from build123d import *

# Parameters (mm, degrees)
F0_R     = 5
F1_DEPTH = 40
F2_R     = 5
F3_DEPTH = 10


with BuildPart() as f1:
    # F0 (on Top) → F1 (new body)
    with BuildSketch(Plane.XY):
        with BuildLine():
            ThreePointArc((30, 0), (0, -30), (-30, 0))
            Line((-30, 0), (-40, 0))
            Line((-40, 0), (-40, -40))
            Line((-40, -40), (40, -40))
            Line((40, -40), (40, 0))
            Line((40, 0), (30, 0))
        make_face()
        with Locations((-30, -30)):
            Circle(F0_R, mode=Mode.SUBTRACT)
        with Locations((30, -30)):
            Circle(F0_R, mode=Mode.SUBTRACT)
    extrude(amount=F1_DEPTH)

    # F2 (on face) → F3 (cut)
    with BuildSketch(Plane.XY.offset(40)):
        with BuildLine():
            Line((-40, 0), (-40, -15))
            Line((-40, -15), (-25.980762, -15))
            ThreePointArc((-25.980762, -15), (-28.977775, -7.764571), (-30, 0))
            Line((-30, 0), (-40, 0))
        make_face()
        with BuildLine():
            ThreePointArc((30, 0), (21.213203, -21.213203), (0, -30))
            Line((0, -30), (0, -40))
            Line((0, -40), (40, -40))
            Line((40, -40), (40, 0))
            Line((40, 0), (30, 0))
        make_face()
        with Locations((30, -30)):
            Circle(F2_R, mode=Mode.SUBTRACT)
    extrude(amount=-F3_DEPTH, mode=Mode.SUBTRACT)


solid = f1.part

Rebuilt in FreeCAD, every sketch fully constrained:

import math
import FreeCAD as App
import Part
import Sketcher

V = App.Vector
Q = App.Units.Quantity

doc = App.newDocument("Part")
body = doc.addObject("PartDesign::Body", "Body")

# Sketch on XY plane
sketch1 = body.newObject("Sketcher::SketchObject", "Sketch")
sketch1.AttachmentSupport = (doc.getObject("XY_Plane"), [""])
sketch1.MapMode = "FlatFace"
sketch1.addGeometry([
    Part.ArcOfCircle(Part.Circle(V(0, 0, 0), V(0, 0, 1), 30), math.radians(180), math.radians(360)),  # 0
    Part.LineSegment(V(-30, 0, 0), V(-40, 0, 0)),  # 1
    Part.LineSegment(V(-40, 0, 0), V(-40, -40, 0)),  # 2
    Part.LineSegment(V(-40, -40, 0), V(40, -40, 0)),  # 3
    Part.LineSegment(V(40, -40, 0), V(40, 0, 0)),  # 4
    Part.LineSegment(V(40, 0, 0), V(30, 0, 0)),  # 5
    Part.Circle(V(-30, -30, 0), V(0, 0, 1), 5),  # 6
    Part.Circle(V(30, -30, 0), V(0, 0, 1), 5),  # 7
], False)
sketch1.addConstraint([
    Sketcher.Constraint("Coincident", 0, 1, 1, 1),
    Sketcher.Constraint("Coincident", 1, 2, 2, 1),
    Sketcher.Constraint("Coincident", 2, 2, 3, 1),
    Sketcher.Constraint("Coincident", 3, 2, 4, 1),
    Sketcher.Constraint("Coincident", 4, 2, 5, 1),
    Sketcher.Constraint("Coincident", 5, 2, 0, 2),
    Sketcher.Constraint("Horizontal", 1),
    Sketcher.Constraint("Vertical", 2),
    Sketcher.Constraint("Horizontal", 3),
    Sketcher.Constraint("Vertical", 4),
    Sketcher.Constraint("Horizontal", 5),
    Sketcher.Constraint("Coincident", 0, 3, -1, 1),
    Sketcher.Constraint("Equal", 6, 7),
    Sketcher.Constraint("Symmetric", 1, 2, 4, 2, -1, 1),
    Sketcher.Constraint("Symmetric", 6, 3, 7, 3, -2),
    Sketcher.Constraint("PointOnObject", 0, 1, -1),
    Sketcher.Constraint("Vertical", 6, 3, 0, 1),
    Sketcher.Constraint("Diameter", 6, Q("10 mm")),
    Sketcher.Constraint("Radius", 0, Q("30 mm")),
    Sketcher.Constraint("DistanceX", 1, 2, 1, 1, Q("10 mm")),
    Sketcher.Constraint("DistanceY", 2, 2, 2, 1, Q("40 mm")),
    Sketcher.Constraint("DistanceY", 6, 3, -1, 1, Q("30 mm")),
])
pad1 = body.newObject("PartDesign::Pad", "Pad")
pad1.Profile = sketch1
pad1.Length = 40

# Sketch on XY plane
sketch2 = body.newObject("Sketcher::SketchObject", "Sketch001")
sketch2.AttachmentSupport = (doc.getObject("XY_Plane"), [""])
sketch2.MapMode = "FlatFace"
sketch2.AttachmentOffset = App.Placement(V(0, 0, 40), App.Rotation())
sketch2.addGeometry([
    Part.LineSegment(V(-40, 0, 0), V(-40, -15, 0)),  # 0
    Part.LineSegment(V(-40, -15, 0), V(-25.980762, -15, 0)),  # 1
    Part.ArcOfCircle(Part.Circle(V(-0.000005, -0.000001, 0), V(0, 0, 1), 29.999995), math.radians(179.999998), math.radians(210.000003)),  # 2
    Part.LineSegment(V(-30, 0, 0), V(-40, 0, 0)),  # 3
    Part.ArcOfCircle(Part.Circle(V(-0.000001, 0.000001, 0), V(0, 0, 1), 30.000001), math.radians(-89.999997), math.radians(-0.000003)),  # 4
    Part.LineSegment(V(0, -30, 0), V(0, -40, 0)),  # 5
    Part.LineSegment(V(0, -40, 0), V(40, -40, 0)),  # 6
    Part.LineSegment(V(40, -40, 0), V(40, 0, 0)),  # 7
    Part.LineSegment(V(40, 0, 0), V(30, 0, 0)),  # 8
    Part.Circle(V(30, -30, 0), V(0, 0, 1), 5),  # 9
], False)
sketch2.addConstraint([
    Sketcher.Constraint("Coincident", 0, 2, 1, 1),
    Sketcher.Constraint("Coincident", 1, 2, 2, 2),
    Sketcher.Constraint("Coincident", 2, 1, 3, 1),
    Sketcher.Constraint("Coincident", 3, 2, 0, 1),
    Sketcher.Constraint("Coincident", 4, 1, 5, 1),
    Sketcher.Constraint("Coincident", 5, 2, 6, 1),
    Sketcher.Constraint("Coincident", 6, 2, 7, 1),
    Sketcher.Constraint("Coincident", 7, 2, 8, 1),
    Sketcher.Constraint("Coincident", 8, 2, 4, 2),
    Sketcher.Constraint("Vertical", 0),
    Sketcher.Constraint("Horizontal", 1),
    Sketcher.Constraint("Horizontal", 3),
    Sketcher.Constraint("Vertical", 5),
    Sketcher.Constraint("Horizontal", 6),
    Sketcher.Constraint("Vertical", 7),
    Sketcher.Constraint("Horizontal", 8),
    Sketcher.Constraint("Coincident", 2, 3, -1, 1),
    Sketcher.Constraint("Coincident", 4, 3, -1, 1),
    Sketcher.Constraint("Symmetric", 3, 2, 7, 2, -1, 1),
    Sketcher.Constraint("Symmetric", 2, 1, 8, 2, -2),
    Sketcher.Constraint("PointOnObject", 4, 1, -2),
    Sketcher.Constraint("Horizontal", 9, 3, 4, 1),
    Sketcher.Constraint("Vertical", 9, 3, 8, 2),
    Sketcher.Constraint("Equal", 8, 5),
    Sketcher.Constraint("Diameter", 9, Q("10 mm")),
    Sketcher.Constraint("Radius", 4, Q("30.000001 mm")),
    Sketcher.Constraint("DistanceX", 3, 2, 3, 1, Q("10 mm")),
    Sketcher.Constraint("DistanceY", 0, 2, 0, 1, Q("15 mm")),
])
pocket1 = body.newObject("PartDesign::Pocket", "Pocket")
pocket1.Profile = sketch2
pocket1.Length = 10

doc.recompute()
